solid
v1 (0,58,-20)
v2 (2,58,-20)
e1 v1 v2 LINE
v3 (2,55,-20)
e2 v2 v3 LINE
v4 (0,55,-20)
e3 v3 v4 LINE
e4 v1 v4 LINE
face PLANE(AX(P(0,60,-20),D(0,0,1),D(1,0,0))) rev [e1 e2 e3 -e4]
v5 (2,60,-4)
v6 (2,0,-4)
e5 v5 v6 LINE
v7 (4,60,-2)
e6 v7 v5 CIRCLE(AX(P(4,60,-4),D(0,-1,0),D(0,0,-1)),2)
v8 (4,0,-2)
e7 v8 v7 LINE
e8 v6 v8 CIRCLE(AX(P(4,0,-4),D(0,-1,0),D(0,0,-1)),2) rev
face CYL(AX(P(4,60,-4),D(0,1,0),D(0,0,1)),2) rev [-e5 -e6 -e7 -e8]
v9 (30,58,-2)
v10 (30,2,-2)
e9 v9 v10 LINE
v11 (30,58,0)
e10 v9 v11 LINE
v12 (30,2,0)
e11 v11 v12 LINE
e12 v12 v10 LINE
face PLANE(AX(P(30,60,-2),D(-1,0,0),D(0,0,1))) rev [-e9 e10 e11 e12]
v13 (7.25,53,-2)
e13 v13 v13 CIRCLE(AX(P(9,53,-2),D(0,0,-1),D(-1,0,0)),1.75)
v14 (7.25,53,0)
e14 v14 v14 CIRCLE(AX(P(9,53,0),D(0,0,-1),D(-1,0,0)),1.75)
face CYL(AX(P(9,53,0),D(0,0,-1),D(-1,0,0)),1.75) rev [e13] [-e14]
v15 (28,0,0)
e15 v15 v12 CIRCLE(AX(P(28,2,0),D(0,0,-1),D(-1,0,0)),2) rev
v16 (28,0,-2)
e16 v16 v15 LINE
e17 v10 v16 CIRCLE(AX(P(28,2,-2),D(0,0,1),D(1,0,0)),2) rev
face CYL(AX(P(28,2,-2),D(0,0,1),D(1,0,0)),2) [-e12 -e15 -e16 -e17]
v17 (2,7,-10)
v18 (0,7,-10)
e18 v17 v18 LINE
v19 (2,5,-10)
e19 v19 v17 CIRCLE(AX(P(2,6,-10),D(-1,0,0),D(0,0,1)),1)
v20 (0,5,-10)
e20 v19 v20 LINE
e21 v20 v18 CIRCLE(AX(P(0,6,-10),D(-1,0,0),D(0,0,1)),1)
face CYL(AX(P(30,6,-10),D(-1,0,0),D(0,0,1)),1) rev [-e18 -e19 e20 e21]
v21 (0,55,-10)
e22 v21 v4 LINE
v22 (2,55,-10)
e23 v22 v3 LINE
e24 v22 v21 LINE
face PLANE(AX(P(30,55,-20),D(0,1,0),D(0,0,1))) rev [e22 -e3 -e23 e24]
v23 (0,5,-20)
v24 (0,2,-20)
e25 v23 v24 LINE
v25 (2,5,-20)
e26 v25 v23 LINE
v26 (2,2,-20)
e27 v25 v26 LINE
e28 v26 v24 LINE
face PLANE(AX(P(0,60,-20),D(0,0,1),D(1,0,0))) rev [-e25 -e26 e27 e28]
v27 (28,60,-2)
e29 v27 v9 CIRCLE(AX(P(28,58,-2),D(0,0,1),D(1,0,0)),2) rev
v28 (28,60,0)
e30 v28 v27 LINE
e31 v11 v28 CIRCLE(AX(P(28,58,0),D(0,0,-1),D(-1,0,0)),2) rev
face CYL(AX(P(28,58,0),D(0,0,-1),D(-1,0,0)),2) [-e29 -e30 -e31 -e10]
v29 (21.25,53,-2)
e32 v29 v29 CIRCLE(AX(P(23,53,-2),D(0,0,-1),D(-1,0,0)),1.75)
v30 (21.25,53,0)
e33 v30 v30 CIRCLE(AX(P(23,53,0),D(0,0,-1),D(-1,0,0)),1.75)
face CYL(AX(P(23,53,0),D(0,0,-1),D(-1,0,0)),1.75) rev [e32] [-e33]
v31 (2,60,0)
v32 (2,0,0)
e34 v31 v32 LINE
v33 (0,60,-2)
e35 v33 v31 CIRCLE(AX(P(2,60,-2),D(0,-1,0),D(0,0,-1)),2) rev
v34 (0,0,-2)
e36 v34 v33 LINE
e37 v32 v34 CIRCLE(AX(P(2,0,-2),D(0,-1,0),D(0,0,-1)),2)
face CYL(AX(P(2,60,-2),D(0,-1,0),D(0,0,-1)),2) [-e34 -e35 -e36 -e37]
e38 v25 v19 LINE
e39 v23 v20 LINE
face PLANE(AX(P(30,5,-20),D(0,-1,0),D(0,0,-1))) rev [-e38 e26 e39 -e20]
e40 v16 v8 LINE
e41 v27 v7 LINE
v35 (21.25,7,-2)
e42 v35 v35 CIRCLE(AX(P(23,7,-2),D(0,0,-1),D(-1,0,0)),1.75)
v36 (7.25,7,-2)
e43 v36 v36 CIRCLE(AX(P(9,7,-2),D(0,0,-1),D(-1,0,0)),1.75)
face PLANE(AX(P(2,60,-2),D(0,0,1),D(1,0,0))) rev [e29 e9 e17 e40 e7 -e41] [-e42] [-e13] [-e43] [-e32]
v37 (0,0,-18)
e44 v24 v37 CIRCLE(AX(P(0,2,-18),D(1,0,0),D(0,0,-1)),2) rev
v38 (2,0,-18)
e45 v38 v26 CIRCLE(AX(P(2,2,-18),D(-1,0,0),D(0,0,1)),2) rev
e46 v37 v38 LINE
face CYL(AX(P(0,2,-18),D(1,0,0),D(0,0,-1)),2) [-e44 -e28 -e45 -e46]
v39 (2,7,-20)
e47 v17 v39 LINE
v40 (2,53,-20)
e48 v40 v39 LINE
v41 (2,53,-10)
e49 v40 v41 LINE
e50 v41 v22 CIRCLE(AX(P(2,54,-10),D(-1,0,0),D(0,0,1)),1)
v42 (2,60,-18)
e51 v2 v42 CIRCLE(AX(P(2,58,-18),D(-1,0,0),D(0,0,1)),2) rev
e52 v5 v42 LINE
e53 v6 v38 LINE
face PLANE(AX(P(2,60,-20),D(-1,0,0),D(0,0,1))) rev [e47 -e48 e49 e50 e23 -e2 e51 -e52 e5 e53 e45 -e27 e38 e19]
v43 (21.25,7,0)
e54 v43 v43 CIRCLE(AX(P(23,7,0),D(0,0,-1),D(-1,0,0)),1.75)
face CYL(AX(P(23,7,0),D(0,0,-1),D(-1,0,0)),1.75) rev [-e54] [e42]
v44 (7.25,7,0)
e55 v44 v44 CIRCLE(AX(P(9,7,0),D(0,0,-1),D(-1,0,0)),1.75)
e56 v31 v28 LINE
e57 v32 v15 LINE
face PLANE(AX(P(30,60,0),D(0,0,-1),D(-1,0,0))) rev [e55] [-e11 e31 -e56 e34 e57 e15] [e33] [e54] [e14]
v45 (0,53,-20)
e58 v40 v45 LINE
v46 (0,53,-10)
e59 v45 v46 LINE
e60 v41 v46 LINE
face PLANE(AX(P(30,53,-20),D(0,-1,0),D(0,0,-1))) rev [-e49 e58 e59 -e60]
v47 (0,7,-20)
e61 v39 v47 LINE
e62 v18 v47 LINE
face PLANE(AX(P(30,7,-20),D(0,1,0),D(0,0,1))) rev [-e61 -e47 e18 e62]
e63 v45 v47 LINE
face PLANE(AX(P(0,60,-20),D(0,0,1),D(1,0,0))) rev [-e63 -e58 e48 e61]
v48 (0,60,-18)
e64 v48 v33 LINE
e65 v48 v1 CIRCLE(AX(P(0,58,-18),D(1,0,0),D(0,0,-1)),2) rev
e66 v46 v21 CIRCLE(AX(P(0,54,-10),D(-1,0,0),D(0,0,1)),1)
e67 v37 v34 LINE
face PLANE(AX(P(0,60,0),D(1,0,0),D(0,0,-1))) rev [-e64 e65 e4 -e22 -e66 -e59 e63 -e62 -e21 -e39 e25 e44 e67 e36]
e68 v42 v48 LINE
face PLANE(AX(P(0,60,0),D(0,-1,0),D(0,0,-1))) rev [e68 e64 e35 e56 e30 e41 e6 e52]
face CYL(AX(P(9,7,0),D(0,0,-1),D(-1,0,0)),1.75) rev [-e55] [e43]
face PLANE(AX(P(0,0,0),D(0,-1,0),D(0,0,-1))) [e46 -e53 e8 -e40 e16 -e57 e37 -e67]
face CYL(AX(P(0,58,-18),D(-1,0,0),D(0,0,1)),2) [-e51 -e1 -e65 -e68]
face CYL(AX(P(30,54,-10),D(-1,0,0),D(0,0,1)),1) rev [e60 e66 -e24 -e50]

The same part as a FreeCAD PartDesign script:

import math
import FreeCAD as App
import Part
import Sketcher
from FreeCAD import Vector


def edges_at(feature, points):
    """Names of the edges that pass closest to the given points."""
    edges = feature.Shape.Edges
    near = lambda p: min(range(len(edges)), key=lambda i: edges[i].distToShape(Part.Vertex(*p))[0])
    return sorted({f"Edge{near(p) + 1}" for p in points})


def add_polygon(sketch, points):
    """Adds a closed chain of lines whose ends are joined by coincident constraints."""
    first, n = sketch.GeometryCount, len(points)
    for a, b in zip(points, points[1:] + points[:1]):
        sketch.addGeometry(Part.LineSegment(App.Vector(*a, 0), App.Vector(*b, 0)), False)
    for i in range(n):
        sketch.addConstraint(Sketcher.Constraint("Coincident", first + i, 2, first + (i + 1) % n, 1))

doc = App.newDocument("Part")
body = doc.addObject("PartDesign::Body", "Body")

# Sketch on XZ plane
sketch1 = doc.addObject("Sketcher::SketchObject", "Sketch")
body.addObject(sketch1)
sketch1.AttachmentSupport = (doc.XZ_Plane, [""])
sketch1.MapMode = "FlatFace"
add_polygon(sketch1, [(0, 0), (30, 0), (30, -2), (2, -2), (2, -20), (0, -20)])  # lines 0-5
sketch1.addConstraint(Sketcher.Constraint("Horizontal", 0))
sketch1.addConstraint(Sketcher.Constraint("Vertical", 1))
sketch1.addConstraint(Sketcher.Constraint("Horizontal", 2))
sketch1.addConstraint(Sketcher.Constraint("Vertical", 3))
sketch1.addConstraint(Sketcher.Constraint("Horizontal", 4))
sketch1.addConstraint(Sketcher.Constraint("Vertical", 5))
sketch1.addConstraint(Sketcher.Constraint("Coincident", 5, 2, -1, 1))
sketch1.addConstraint(Sketcher.Constraint("Equal", 4, 1))
sketch1.addConstraint(Sketcher.Constraint("DistanceX", 0, 1, 0, 2, 30.0))
sketch1.addConstraint(Sketcher.Constraint("DistanceX", 2, 2, 2, 1, 28.0))
sketch1.addConstraint(Sketcher.Constraint("DistanceY", 3, 2, 3, 1, 18.0))
pad1 = doc.addObject("PartDesign::Pad", "Pad")
body.addObject(pad1)
pad1.Profile = sketch1
pad1.Length = 60
pad1.Reversed = True

# Sketch on YZ plane
sketch2 = doc.addObject("Sketcher::SketchObject", "Sketch001")
body.addObject(sketch2)
sketch2.AttachmentSupport = (doc.YZ_Plane, [""])
sketch2.MapMode = "FlatFace"
sketch2.addGeometry(Part.LineSegment(Vector(55, -10, 0), Vector(55, -20, 0)), False)
sketch2.addGeometry(Part.LineSegment(Vector(55, -20, 0), Vector(53, -20, 0)), False)
sketch2.addGeometry(Part.LineSegment(Vector(53, -20, 0), Vector(53, -10, 0)), False)
sketch2.addGeometry(Part.ArcOfCircle(Part.Circle(Vector(54, -10, 0), Vector(0, 0, 1), 1), math.radians(0), math.radians(180)), False)
sketch2.addGeometry(Part.LineSegment(Vector(5, -20, 0), Vector(5, -10, 0)), False)
sketch2.addGeometry(Part.ArcOfCircle(Part.Circle(Vector(6, -10, 0), Vector(0, 0, 1), 1), math.radians(0), math.radians(180)), False)
sketch2.addGeometry(Part.LineSegment(Vector(7, -10, 0), Vector(7, -20, 0)), False)
sketch2.addGeometry(Part.LineSegment(Vector(7, -20, 0), Vector(5, -20, 0)), False)
sketch2.addConstraint(Sketcher.Constraint("Coincident", 0, 2, 1, 1))
sketch2.addConstraint(Sketcher.Constraint("Coincident", 1, 2, 2, 1))
sketch2.addConstraint(Sketcher.Constraint("Tangent", 2, 2, 3, 2))
sketch2.addConstraint(Sketcher.Constraint("Tangent", 3, 1, 0, 1))
sketch2.addConstraint(Sketcher.Constraint("Tangent", 4, 2, 5, 2))
sketch2.addConstraint(Sketcher.Constraint("Tangent", 5, 1, 6, 1))
sketch2.addConstraint(Sketcher.Constraint("Coincident", 6, 2, 7, 1))
sketch2.addConstraint(Sketcher.Constraint("Coincident", 7, 2, 4, 1))
sketch2.addConstraint(Sketcher.Constraint("Vertical", 0))
sketch2.addConstraint(Sketcher.Constraint("Horizontal", 1))
sketch2.addConstraint(Sketcher.Constraint("Vertical", 2))
sketch2.addConstraint(Sketcher.Constraint("Vertical", 4))
sketch2.addConstraint(Sketcher.Constraint("Vertical", 6))
sketch2.addConstraint(Sketcher.Constraint("Horizontal", 7))
sketch2.addConstraint(Sketcher.Constraint("Equal", 3, 5))
sketch2.addConstraint(Sketcher.Constraint("Horizontal", 3, 3, 5, 3))
sketch2.addConstraint(Sketcher.Constraint("Horizontal", 1, 2, 6, 2))
sketch2.addConstraint(Sketcher.Constraint("Radius", 3, 1.0))
sketch2.addConstraint(Sketcher.Constraint("DistanceY", 0, 2, 0, 1, 10.0))
sketch2.addConstraint(Sketcher.Constraint("DistanceX", -1, 1, 3, 3, 54.0))
sketch2.addConstraint(Sketcher.Constraint("DistanceY", 3, 3, -1, 1, 10.0))
sketch2.addConstraint(Sketcher.Constraint("DistanceX", -1, 1, 5, 3, 6.0))
pocket1 = doc.addObject("PartDesign::Pocket", "Pocket")
body.addObject(pocket1)
pocket1.Profile = sketch2
pocket1.Type = "ThroughAll"
pocket1.Reversed = True

# Sketch on XY plane
sketch3 = doc.addObject("Sketcher::SketchObject", "Sketch002")
body.addObject(sketch3)
sketch3.AttachmentSupport = (doc.XY_Plane, [""])
sketch3.MapMode = "FlatFace"
sketch3.AttachmentOffset = App.Placement(Vector(0, 0, -2), App.Rotation())
sketch3.addGeometry(Part.Circle(Vector(23, 53, 0), Vector(0, 0, 1), 1.8), False)
sketch3.addGeometry(Part.Circle(Vector(9, 53, 0), Vector(0, 0, 1), 1.8), False)
sketch3.addGeometry(Part.Circle(Vector(9, 7, 0), Vector(0, 0, 1), 1.8), False)
sketch3.addGeometry(Part.Circle(Vector(23, 7, 0), Vector(0, 0, 1), 1.8), False)
sketch3.addConstraint(Sketcher.Constraint("Equal", 0, 1))
sketch3.addConstraint(Sketcher.Constraint("Equal", 1, 2))
sketch3.addConstraint(Sketcher.Constraint("Equal", 2, 3))
sketch3.addConstraint(Sketcher.Constraint("Horizontal", 0, 3, 1, 3))
sketch3.addConstraint(Sketcher.Constraint("Horizontal", 2, 3, 3, 3))
sketch3.addConstraint(Sketcher.Constraint("Vertical", 1, 3, 2, 3))
sketch3.addConstraint(Sketcher.Constraint("Vertical", 0, 3, 3, 3))
sketch3.addConstraint(Sketcher.Constraint("Diameter", 0, 3.5))
sketch3.addConstraint(Sketcher.Constraint("DistanceX", -1, 1, 0, 3, 23.0))
sketch3.addConstraint(Sketcher.Constraint("DistanceY", -1, 1, 0, 3, 53.0))
sketch3.addConstraint(Sketcher.Constraint("DistanceX", -1, 1, 1, 3, 9.0))
sketch3.addConstraint(Sketcher.Constraint("DistanceY", -1, 1, 2, 3, 7.0))
pocket2 = doc.addObject("PartDesign::Pocket", "Pocket001")
body.addObject(pocket2)
pocket2.Profile = sketch3
pocket2.Type = "ThroughAll"
pocket2.Reversed = True
doc.recompute()

fillet = doc.addObject("PartDesign::Fillet", "Fillet")
body.addObject(fillet)
fillet.Base = (pocket2, edges_at(pocket2, [
    (0, 30, 0),
    (2, 30, -2),
    (1, 60, -20),
    (30, 60, -1),
    (1, 0, -20),
    (30, 0, -1),
]))
fillet.Radius = 2

doc.recompute()
